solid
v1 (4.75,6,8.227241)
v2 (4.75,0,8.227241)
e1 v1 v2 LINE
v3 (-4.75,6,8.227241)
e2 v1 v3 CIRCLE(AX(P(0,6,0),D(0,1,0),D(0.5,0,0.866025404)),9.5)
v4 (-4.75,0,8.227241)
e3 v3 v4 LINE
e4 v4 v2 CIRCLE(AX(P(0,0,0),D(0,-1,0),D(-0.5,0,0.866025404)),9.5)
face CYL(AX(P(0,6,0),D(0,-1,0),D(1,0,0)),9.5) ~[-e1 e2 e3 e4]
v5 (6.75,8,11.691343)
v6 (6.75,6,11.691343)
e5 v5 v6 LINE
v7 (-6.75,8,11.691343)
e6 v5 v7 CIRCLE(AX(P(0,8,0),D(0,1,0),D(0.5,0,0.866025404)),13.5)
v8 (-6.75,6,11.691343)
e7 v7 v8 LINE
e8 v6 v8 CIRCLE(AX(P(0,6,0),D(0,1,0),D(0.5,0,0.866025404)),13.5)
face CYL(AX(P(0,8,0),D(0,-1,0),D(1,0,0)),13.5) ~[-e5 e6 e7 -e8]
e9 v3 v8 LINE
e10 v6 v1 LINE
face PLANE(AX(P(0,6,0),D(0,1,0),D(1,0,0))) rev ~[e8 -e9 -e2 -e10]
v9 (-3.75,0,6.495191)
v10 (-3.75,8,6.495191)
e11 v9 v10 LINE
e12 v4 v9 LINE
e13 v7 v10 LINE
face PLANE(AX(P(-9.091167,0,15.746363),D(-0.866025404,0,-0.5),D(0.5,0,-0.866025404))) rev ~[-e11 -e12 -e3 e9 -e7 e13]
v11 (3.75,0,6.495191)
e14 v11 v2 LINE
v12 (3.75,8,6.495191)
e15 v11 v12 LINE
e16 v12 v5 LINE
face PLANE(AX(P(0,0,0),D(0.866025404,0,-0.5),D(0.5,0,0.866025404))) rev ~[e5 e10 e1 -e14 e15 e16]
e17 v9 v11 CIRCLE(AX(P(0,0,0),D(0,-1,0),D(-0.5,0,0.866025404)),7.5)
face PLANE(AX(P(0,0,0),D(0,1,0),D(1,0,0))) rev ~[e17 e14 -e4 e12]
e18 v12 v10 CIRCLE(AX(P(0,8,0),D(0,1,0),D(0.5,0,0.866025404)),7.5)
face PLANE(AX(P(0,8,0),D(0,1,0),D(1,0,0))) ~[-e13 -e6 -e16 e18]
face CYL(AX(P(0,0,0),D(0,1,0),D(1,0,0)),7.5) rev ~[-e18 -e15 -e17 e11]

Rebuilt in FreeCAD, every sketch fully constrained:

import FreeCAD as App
import Part
import Sketcher
from FreeCAD import Vector
Q = App.Units.Quantity

doc = App.newDocument("Part")
body = doc.addObject("PartDesign::Body", "Body")

# Sketch on XY plane
sketch1 = body.newObject("Sketcher::SketchObject", "Sketch")
sketch1.AttachmentSupport = (doc.getObject("XY_Plane"), [""])
sketch1.MapMode = "FlatFace"
sketch1.addGeometry([
    Part.LineSegment(Vector(7.5, 8, 0), Vector(7.5, 0, 0)),  # 0
    Part.LineSegment(Vector(7.5, 0, 0), Vector(9.5, 0, 0)),  # 1
    Part.LineSegment(Vector(9.5, 0, 0), Vector(9.5, 6, 0)),  # 2
    Part.LineSegment(Vector(9.5, 6, 0), Vector(13.5, 6, 0)),  # 3
    Part.LineSegment(Vector(13.5, 6, 0), Vector(13.5, 8, 0)),  # 4
    Part.LineSegment(Vector(13.5, 8, 0), Vector(7.5, 8, 0)),  # 5
], False)
sketch1.addConstraint([
    Sketcher.Constraint("Coincident", 0, 2, 1, 1),
    Sketcher.Constraint("Coincident", 1, 2, 2, 1),
    Sketcher.Constraint("Coincident", 2, 2, 3, 1),
    Sketcher.Constraint("Coincident", 3, 2, 4, 1),
    Sketcher.Constraint("Coincident", 4, 2, 5, 1),
    Sketcher.Constraint("Coincident", 5, 2, 0, 1),
    Sketcher.Constraint("Vertical", 0),
    Sketcher.Constraint("Horizontal", 1),
    Sketcher.Constraint("Vertical", 2),
    Sketcher.Constraint("Horizontal", 3),
    Sketcher.Constraint("Vertical", 4),
    Sketcher.Constraint("Horizontal", 5),
    Sketcher.Constraint("PointOnObject", 0, 2, -1),
    Sketcher.Constraint("Equal", 5, 2),
    Sketcher.Constraint("Equal", 1, 4),
    Sketcher.Constraint("DistanceX", 1, 1, 1, 2, 2.0),
    Sketcher.Constraint("DistanceX", 3, 1, 3, 2, 4.0),
    Sketcher.Constraint("DistanceX", -1, 1, 0, 2, 7.5),
])
revolution = body.newObject("PartDesign::Revolution", "Revolution")
revolution.Profile = sketch1
revolution.ReferenceAxis = (sketch1, ["V_Axis"])
revolution.Angle = 360

# Sketch on XZ plane
sketch2 = body.newObject("Sketcher::SketchObject", "Sketch001")
sketch2.AttachmentSupport = (doc.getObject("XZ_Plane"), [""])
sketch2.MapMode = "FlatFace"
sketch2.addGeometry([
    Part.LineSegment(Vector(0, 0, 0), Vector(-9, 16, 0)),
    Part.LineSegment(Vector(-9, 16, 0), Vector(9, 15, 0)),
    Part.LineSegment(Vector(9, 15, 0), Vector(0, 0, 0)),
], False)
sketch2.addConstraint([
    Sketcher.Constraint("Coincident", 0, 2, 1, 1),
    Sketcher.Constraint("Coincident", 1, 2, 2, 1),
    Sketcher.Constraint("Coincident", 2, 2, 0, 1),
    Sketcher.Constraint("Coincident", 2, 2, -1, 1),
    Sketcher.Constraint("Angle", 0, Q("120 deg")),
    Sketcher.Constraint("Angle", 2, Q("-120 deg")),
    Sketcher.Constraint("Distance", 2, 17.25106),
    Sketcher.Constraint("Distance", 0, 18.182334),
])
pocket1 = body.newObject("PartDesign::Pocket", "Pocket")
pocket1.Profile = sketch2
pocket1.Length = 10

doc.recompute()
